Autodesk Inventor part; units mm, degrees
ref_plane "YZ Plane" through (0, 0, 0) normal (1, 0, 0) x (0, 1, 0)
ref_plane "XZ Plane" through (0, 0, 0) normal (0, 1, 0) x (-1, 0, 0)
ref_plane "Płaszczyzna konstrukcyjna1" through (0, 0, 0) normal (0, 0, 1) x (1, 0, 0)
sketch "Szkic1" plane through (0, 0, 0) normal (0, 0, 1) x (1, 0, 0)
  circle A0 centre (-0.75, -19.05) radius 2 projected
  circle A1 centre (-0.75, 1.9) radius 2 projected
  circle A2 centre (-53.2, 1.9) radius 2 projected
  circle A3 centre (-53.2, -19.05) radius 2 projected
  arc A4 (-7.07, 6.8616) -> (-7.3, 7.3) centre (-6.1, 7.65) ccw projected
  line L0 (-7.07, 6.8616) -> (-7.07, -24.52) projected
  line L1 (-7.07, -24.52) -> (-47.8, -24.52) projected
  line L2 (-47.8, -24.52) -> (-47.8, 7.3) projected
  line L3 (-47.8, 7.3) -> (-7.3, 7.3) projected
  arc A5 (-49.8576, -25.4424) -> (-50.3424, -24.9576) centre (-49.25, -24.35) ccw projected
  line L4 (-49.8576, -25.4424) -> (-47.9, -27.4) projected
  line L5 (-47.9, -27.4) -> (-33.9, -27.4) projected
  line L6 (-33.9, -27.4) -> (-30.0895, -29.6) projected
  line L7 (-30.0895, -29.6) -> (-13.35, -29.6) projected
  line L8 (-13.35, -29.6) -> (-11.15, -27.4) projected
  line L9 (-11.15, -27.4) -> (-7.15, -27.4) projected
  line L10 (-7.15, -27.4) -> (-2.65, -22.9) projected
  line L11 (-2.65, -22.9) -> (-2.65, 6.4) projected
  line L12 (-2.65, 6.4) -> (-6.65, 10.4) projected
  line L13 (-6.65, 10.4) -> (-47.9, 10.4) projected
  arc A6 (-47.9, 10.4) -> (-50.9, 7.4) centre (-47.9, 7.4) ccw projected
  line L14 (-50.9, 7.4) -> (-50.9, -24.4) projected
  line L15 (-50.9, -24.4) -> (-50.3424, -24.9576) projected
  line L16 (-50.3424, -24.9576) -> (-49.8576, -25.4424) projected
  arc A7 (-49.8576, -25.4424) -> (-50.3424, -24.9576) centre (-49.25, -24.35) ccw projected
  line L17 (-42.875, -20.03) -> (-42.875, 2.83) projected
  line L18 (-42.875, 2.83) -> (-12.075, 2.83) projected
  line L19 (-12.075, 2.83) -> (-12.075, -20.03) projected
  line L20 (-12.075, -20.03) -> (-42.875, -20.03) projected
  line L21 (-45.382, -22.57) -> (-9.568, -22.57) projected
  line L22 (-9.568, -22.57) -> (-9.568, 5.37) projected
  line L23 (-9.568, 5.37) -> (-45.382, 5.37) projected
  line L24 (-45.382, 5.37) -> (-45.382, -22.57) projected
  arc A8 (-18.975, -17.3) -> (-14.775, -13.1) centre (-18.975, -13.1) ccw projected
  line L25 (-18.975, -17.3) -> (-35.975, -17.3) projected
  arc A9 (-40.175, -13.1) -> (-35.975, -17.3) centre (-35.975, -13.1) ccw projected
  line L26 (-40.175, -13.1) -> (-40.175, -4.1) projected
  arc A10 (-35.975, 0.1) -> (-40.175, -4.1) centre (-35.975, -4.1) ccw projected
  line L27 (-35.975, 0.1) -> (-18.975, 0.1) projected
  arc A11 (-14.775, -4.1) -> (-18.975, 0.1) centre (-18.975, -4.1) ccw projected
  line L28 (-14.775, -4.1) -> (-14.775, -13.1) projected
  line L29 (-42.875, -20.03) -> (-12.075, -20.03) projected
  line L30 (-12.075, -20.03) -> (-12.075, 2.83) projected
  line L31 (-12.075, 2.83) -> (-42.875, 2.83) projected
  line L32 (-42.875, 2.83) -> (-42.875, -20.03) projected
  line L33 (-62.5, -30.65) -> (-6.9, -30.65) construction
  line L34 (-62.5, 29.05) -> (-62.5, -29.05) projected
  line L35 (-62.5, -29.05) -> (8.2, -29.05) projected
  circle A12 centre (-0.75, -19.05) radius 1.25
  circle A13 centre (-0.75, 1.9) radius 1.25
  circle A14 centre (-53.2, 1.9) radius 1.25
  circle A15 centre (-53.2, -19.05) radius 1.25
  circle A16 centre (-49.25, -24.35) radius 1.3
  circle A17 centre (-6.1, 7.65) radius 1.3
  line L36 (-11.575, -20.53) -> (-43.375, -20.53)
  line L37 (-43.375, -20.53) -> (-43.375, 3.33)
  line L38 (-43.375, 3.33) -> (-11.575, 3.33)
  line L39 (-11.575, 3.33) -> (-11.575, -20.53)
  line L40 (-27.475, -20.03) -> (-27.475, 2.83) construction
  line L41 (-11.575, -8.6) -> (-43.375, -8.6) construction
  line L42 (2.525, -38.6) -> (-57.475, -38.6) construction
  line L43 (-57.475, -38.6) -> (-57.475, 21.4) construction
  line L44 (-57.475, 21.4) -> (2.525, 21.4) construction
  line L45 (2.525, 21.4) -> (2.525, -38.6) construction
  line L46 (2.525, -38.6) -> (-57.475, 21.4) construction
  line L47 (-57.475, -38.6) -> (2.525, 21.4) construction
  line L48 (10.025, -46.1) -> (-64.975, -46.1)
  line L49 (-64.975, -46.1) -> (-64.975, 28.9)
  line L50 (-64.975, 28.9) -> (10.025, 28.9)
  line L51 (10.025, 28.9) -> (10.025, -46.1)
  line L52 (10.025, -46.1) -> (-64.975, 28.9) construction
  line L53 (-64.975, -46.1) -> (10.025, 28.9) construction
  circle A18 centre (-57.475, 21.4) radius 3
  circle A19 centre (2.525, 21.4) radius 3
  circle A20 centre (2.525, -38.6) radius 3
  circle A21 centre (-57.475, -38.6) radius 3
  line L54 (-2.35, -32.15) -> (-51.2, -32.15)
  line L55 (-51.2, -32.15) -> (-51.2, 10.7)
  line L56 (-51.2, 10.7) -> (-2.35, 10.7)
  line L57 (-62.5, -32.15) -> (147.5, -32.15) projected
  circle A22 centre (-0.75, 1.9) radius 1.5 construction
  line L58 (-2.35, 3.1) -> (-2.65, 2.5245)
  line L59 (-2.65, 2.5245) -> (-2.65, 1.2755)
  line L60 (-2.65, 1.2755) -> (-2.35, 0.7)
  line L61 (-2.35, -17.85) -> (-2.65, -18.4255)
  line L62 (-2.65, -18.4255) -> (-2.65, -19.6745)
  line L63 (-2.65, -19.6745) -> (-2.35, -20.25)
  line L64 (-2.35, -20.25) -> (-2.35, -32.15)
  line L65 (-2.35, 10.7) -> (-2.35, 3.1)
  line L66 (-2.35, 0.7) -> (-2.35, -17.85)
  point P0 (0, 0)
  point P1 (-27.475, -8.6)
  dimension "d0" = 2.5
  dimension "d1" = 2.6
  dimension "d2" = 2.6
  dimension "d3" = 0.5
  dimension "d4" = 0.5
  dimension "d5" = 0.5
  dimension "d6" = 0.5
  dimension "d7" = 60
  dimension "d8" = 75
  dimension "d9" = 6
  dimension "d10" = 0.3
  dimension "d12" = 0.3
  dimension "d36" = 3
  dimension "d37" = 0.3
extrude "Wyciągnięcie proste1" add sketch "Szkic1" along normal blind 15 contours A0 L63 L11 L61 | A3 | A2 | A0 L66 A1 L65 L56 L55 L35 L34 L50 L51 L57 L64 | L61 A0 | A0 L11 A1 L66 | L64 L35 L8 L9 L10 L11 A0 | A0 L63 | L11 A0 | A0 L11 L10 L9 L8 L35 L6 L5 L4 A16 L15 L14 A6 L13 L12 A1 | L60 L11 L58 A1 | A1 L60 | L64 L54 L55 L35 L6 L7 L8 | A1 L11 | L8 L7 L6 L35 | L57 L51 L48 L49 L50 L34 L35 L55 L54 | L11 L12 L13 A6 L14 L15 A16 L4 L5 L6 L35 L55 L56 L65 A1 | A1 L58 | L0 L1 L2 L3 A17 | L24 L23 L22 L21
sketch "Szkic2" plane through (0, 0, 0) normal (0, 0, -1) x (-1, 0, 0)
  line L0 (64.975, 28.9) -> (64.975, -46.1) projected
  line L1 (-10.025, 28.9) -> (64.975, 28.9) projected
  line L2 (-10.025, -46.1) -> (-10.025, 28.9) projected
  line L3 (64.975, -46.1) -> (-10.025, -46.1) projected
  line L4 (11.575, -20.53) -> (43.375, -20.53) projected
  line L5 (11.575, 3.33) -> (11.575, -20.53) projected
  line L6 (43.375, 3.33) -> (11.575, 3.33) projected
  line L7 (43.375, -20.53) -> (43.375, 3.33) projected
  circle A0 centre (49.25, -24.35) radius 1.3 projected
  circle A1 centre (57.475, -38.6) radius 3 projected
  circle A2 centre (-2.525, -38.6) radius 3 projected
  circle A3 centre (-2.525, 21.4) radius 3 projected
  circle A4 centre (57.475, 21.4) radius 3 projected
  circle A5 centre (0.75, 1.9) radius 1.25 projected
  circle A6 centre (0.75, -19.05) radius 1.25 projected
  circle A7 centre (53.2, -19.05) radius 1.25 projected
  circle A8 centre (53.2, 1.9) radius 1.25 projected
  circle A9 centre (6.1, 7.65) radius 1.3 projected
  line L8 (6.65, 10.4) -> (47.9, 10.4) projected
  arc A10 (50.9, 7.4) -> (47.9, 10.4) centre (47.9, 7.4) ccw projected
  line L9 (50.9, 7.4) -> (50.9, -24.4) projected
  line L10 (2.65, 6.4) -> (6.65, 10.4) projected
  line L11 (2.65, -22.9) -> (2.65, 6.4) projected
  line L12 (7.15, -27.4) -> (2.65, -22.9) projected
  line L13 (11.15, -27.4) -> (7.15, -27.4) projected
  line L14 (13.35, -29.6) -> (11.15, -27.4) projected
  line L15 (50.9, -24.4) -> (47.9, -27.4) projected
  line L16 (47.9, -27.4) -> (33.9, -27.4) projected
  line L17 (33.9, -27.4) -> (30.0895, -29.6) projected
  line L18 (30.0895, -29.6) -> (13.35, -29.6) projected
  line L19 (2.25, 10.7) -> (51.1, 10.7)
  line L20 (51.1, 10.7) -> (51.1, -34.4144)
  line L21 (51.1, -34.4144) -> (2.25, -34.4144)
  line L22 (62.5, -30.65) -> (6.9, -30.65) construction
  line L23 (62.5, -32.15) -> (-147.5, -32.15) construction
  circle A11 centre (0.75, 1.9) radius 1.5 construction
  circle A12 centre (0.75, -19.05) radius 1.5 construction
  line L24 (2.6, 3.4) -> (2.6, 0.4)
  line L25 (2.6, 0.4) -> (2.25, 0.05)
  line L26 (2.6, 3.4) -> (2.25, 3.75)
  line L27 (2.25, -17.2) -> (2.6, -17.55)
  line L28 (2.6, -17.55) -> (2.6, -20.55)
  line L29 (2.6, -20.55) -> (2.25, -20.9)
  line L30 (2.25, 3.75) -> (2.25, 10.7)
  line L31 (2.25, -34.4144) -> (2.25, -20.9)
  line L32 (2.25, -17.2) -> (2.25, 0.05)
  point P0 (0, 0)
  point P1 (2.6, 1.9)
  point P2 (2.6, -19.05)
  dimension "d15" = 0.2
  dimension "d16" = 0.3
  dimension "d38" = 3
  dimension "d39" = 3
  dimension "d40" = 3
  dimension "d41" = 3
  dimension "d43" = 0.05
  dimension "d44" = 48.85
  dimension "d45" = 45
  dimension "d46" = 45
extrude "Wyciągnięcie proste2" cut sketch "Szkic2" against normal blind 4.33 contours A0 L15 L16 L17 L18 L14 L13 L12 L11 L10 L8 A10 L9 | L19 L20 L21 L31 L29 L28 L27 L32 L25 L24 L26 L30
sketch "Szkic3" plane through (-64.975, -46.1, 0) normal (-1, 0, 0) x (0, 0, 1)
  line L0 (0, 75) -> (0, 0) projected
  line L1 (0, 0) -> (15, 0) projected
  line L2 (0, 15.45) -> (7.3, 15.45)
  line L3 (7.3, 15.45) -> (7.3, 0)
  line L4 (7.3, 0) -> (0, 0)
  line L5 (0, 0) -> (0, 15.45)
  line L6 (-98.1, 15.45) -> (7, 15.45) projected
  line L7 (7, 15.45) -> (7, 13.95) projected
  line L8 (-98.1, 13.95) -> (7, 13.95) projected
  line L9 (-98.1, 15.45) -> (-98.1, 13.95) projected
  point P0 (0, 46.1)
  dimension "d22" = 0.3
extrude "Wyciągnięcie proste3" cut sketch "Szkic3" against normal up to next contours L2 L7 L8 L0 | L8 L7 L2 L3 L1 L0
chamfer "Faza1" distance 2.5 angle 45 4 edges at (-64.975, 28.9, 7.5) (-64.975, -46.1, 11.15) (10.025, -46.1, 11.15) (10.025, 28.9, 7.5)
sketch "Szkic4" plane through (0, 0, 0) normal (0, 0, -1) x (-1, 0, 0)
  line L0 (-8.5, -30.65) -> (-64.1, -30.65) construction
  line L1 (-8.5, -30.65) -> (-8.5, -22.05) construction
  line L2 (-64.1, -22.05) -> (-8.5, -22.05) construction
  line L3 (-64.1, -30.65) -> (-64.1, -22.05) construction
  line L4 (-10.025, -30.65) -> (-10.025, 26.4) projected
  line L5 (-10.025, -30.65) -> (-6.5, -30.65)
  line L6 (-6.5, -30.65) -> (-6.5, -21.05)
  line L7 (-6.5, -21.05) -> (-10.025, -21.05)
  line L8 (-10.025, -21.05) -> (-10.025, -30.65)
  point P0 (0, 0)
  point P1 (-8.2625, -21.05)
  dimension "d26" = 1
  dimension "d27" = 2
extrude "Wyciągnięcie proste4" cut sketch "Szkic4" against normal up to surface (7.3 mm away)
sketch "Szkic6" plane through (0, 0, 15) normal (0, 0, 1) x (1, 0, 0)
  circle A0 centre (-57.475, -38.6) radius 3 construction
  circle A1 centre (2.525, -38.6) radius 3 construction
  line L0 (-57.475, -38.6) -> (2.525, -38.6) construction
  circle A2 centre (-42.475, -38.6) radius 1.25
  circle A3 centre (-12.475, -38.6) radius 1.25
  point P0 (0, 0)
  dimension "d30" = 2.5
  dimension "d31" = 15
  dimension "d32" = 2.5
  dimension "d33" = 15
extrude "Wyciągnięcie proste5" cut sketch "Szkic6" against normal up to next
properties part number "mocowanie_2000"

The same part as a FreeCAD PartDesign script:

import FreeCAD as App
import Part
import Sketcher
from FreeCAD import Vector
Q = App.Units.Quantity


def edges_at(feature, points):
    """Names of the edges that pass closest to the given points."""
    edges = feature.Shape.Edges
    near = lambda p: min(range(len(edges)), key=lambda i: edges[i].distToShape(Part.Vertex(*p))[0])
    return sorted({f"Edge{near(p) + 1}" for p in points})

doc = App.newDocument("Part")
body = doc.addObject("PartDesign::Body", "Body")

# Sketch on XY plane
sketch1 = doc.addObject("Sketcher::SketchObject", "Sketch")
body.addObject(sketch1)
sketch1.AttachmentSupport = (doc.XY_Plane, [""])
sketch1.MapMode = "FlatFace"
sketch1.addGeometry([
    Part.LineSegment(Vector(10, 28.9, 0), Vector(-65, 28.9, 0)),  # 0
    Part.LineSegment(Vector(-65, 28.9, 0), Vector(-65, -46.1, 0)),  # 1
    Part.LineSegment(Vector(-65, -46.1, 0), Vector(10, -46.1, 0)),  # 2
    Part.LineSegment(Vector(10, -46.1, 0), Vector(10, 28.9, 0)),  # 3
    Part.Circle(Vector(-0.8, -19.1, 0), Vector(0, 0, 1), 1.2),  # 4
    Part.Circle(Vector(-57.5, 21.4, 0), Vector(0, 0, 1), 3),  # 5
    Part.Circle(Vector(2.5, 21.4, 0), Vector(0, 0, 1), 3),  # 6
    Part.Circle(Vector(-0.8, 1.9, 0), Vector(0, 0, 1), 1.2),  # 7
    Part.Circle(Vector(-49.2, -24.4, 0), Vector(0, 0, 1), 1.3),  # 8
    Part.Circle(Vector(-57.5, -38.6, 0), Vector(0, 0, 1), 3),  # 9
    Part.Circle(Vector(2.5, -38.6, 0), Vector(0, 0, 1), 3),  # 10
    Part.Circle(Vector(-53.2, -19.1, 0), Vector(0, 0, 1), 1.2),  # 11
    Part.Circle(Vector(-53.2, 1.9, 0), Vector(0, 0, 1), 1.2),  # 12
    Part.Circle(Vector(-6.1, 7.7, 0), Vector(0, 0, 1), 1.3),  # 13
    Part.LineSegment(Vector(-11.6, -20.5, 0), Vector(-43.4, -20.5, 0)),  # 14
    Part.LineSegment(Vector(-43.4, -20.5, 0), Vector(-43.4, 3.3, 0)),  # 15
    Part.LineSegment(Vector(-43.4, 3.3, 0), Vector(-11.6, 3.3, 0)),  # 16
    Part.LineSegment(Vector(-11.6, 3.3, 0), Vector(-11.6, -20.5, 0)),  # 17
], False)
sketch1.addConstraint([
    Sketcher.Constraint("Coincident", 0, 2, 1, 1),
    Sketcher.Constraint("Coincident", 1, 2, 2, 1),
    Sketcher.Constraint("Coincident", 2, 2, 3, 1),
    Sketcher.Constraint("Coincident", 3, 2, 0, 1),
    Sketcher.Constraint("Coincident", 14, 2, 15, 1),
    Sketcher.Constraint("Coincident", 15, 2, 16, 1),
    Sketcher.Constraint("Coincident", 16, 2, 17, 1),
    Sketcher.Constraint("Coincident", 17, 2, 14, 1),
    Sketcher.Constraint("Horizontal", 0),
    Sketcher.Constraint("Vertical", 1),
    Sketcher.Constraint("Horizontal", 2),
    Sketcher.Constraint("Vertical", 3),
    Sketcher.Constraint("Horizontal", 14),
    Sketcher.Constraint("Vertical", 15),
    Sketcher.Constraint("Horizontal", 16),
    Sketcher.Constraint("Vertical", 17),
    Sketcher.Constraint("Equal", 5, 6),
    Sketcher.Constraint("Equal", 4, 7),
    Sketcher.Constraint("Equal", 6, 9),
    Sketcher.Constraint("Equal", 9, 10),
    Sketcher.Constraint("Equal", 7, 11),
    Sketcher.Constraint("Equal", 11, 12),
    Sketcher.Constraint("Equal", 8, 13),
    Sketcher.Constraint("Horizontal", 5, 3, 6, 3),
    Sketcher.Constraint("Horizontal", 9, 3, 10, 3),
    Sketcher.Constraint("Horizontal", 4, 3, 11, 3),
    Sketcher.Constraint("Horizontal", 7, 3, 12, 3),
    Sketcher.Constraint("Vertical", 4, 3, 7, 3),
    Sketcher.Constraint("Vertical", 5, 3, 9, 3),
    Sketcher.Constraint("Vertical", 6, 3, 10, 3),
    Sketcher.Constraint("Vertical", 11, 3, 12, 3),
    Sketcher.Constraint("Equal", 2, 1),
    Sketcher.Constraint("Diameter", 5, Q("6 mm")),
    Sketcher.Constraint("Diameter", 4, Q("2.5 mm")),
    Sketcher.Constraint("Diameter", 8, Q("2.6 mm")),
    Sketcher.Constraint("DistanceX", 0, 2, 0, 1, Q("75 mm")),
    Sketcher.Constraint("DistanceX", 5, 3, 6, 3, Q("60 mm")),
    Sketcher.Constraint("DistanceY", 9, 3, 5, 3, Q("60 mm")),
    Sketcher.Constraint("DistanceX", 14, 2, 14, 1, Q("31.8 mm")),
    Sketcher.Constraint("DistanceY", 12, 3, 0, 2, Q("27 mm")),
    Sketcher.Constraint("DistanceY", 15, 1, 15, 2, Q("23.86 mm")),
    Sketcher.Constraint("DistanceY", -1, 1, 5, 3, Q("21.4 mm")),
    Sketcher.Constraint("DistanceY", -1, 1, 7, 3, Q("1.9 mm")),
    Sketcher.Constraint("DistanceX", 11, 3, -1, 1, Q("53.2 mm")),
    Sketcher.Constraint("DistanceX", 13, 3, -1, 1, Q("6.1 mm")),
    Sketcher.Constraint("DistanceX", 8, 3, 4, 3, Q("48.5 mm")),
    Sketcher.Constraint("DistanceY", 8, 3, 4, 3, Q("5.3 mm")),
    Sketcher.Constraint("DistanceY", 4, 3, 13, 3, Q("26.7 mm")),
    Sketcher.Constraint("DistanceX", 0, 2, 5, 3, Q("7.5 mm")),
    Sketcher.Constraint("DistanceX", 9, 3, 14, 2, Q("14.1 mm")),
    Sketcher.Constraint("DistanceX", 4, 3, -1, 1, Q("0.75 mm")),
    Sketcher.Constraint("DistanceY", 4, 3, -1, 1, Q("19.05 mm")),
    Sketcher.Constraint("DistanceY", 14, 2, -1, 1, Q("20.53 mm")),
    Sketcher.Constraint("DistanceX", 5, 3, -1, 1, Q("57.475 mm")),
])
pad1 = doc.addObject("PartDesign::Pad", "Pad")
body.addObject(pad1)
pad1.Profile = sketch1
pad1.Length = 15

# Sketch on XY plane
sketch2 = doc.addObject("Sketcher::SketchObject", "Sketch001")
body.addObject(sketch2)
sketch2.AttachmentSupport = (doc.XY_Plane, [""])
sketch2.MapMode = "FlatFace"
sketch2.addGeometry([
    Part.LineSegment(Vector(-51.1, 10.7, 0), Vector(-2.25, 10.7, 0)),  # 0
    Part.LineSegment(Vector(-2.25, 10.7, 0), Vector(-2.25, 3.75, 0)),  # 1
    Part.LineSegment(Vector(-2.25, 3.75, 0), Vector(-2.6, 3.4, 0)),  # 2
    Part.LineSegment(Vector(-2.6, 3.4, 0), Vector(-2.6, 0.4, 0)),  # 3
    Part.LineSegment(Vector(-2.6, 0.4, 0), Vector(-2.25, 0.05, 0)),  # 4
    Part.LineSegment(Vector(-2.25, 0.05, 0), Vector(-2.25, -17.2, 0)),  # 5
    Part.LineSegment(Vector(-2.25, -17.2, 0), Vector(-2.6, -17.55, 0)),  # 6
    Part.LineSegment(Vector(-2.6, -17.55, 0), Vector(-2.6, -20.55, 0)),  # 7
    Part.LineSegment(Vector(-2.6, -20.55, 0), Vector(-2.25, -20.9, 0)),  # 8
    Part.LineSegment(Vector(-2.25, -20.9, 0), Vector(-2.25, -34.41, 0)),  # 9
    Part.LineSegment(Vector(-2.25, -34.41, 0), Vector(-51.1, -34.41, 0)),  # 10
    Part.LineSegment(Vector(-51.1, -34.41, 0), Vector(-51.1, 10.7, 0)),  # 11
    Part.Circle(Vector(-49.25, -24.35, 0), Vector(0, 0, 1), 1.3),  # 12
    Part.Circle(Vector(-6.1, 7.65, 0), Vector(0, 0, 1), 1.3),  # 13
    Part.LineSegment(Vector(-43.38, -20.53, 0), Vector(-11.57, -20.53, 0)),  # 14
    Part.LineSegment(Vector(-11.57, -20.53, 0), Vector(-11.57, 3.33, 0)),  # 15
    Part.LineSegment(Vector(-11.57, 3.33, 0), Vector(-43.38, 3.33, 0)),  # 16
    Part.LineSegment(Vector(-43.38, 3.33, 0), Vector(-43.38, -20.53, 0)),  # 17
], False)
sketch2.addConstraint([
    Sketcher.Constraint("Coincident", 0, 2, 1, 1),
    Sketcher.Constraint("Coincident", 1, 2, 2, 1),
    Sketcher.Constraint("Coincident", 2, 2, 3, 1),
    Sketcher.Constraint("Coincident", 3, 2, 4, 1),
    Sketcher.Constraint("Coincident", 4, 2, 5, 1),
    Sketcher.Constraint("Coincident", 5, 2, 6, 1),
    Sketcher.Constraint("Coincident", 6, 2, 7, 1),
    Sketcher.Constraint("Coincident", 7, 2, 8, 1),
    Sketcher.Constraint("Coincident", 8, 2, 9, 1),
    Sketcher.Constraint("Coincident", 9, 2, 10, 1),
    Sketcher.Constraint("Coincident", 10, 2, 11, 1),
    Sketcher.Constraint("Coincident", 11, 2, 0, 1),
    Sketcher.Constraint("Coincident", 14, 2, 15, 1),
    Sketcher.Constraint("Coincident", 15, 2, 16, 1),
    Sketcher.Constraint("Coincident", 16, 2, 17, 1),
    Sketcher.Constraint("Coincident", 17, 2, 14, 1),
    Sketcher.Constraint("Horizontal", 0),
    Sketcher.Constraint("Vertical", 1),
    Sketcher.Constraint("Vertical", 3),
    Sketcher.Constraint("Vertical", 5),
    Sketcher.Constraint("Vertical", 7),
    Sketcher.Constraint("Vertical", 9),
    Sketcher.Constraint("Horizontal", 10),
    Sketcher.Constraint("Vertical", 11),
    Sketcher.Constraint("Horizontal", 14),
    Sketcher.Constraint("Vertical", 15),
    Sketcher.Constraint("Horizontal", 16),
    Sketcher.Constraint("Vertical", 17),
    Sketcher.Constraint("Equal", 12, 13),
    Sketcher.Constraint("Perpendicular", 2, 4),
    Sketcher.Constraint("Perpendicular", 4, 6),
    Sketcher.Constraint("Perpendicular", 6, 8),
    Sketcher.Constraint("Vertical", 1, 2, 4, 2),
    Sketcher.Constraint("Vertical", 3, 2, 6, 2),
    Sketcher.Constraint("Vertical", 5, 2, 8, 2),
    Sketcher.Constraint("Equal", 3, 7),
    Sketcher.Constraint("Equal", 2, 4),
    Sketcher.Constraint("DistanceY", 3, 2, 3, 1, Q("3 mm")),
    Sketcher.Constraint("DistanceX", 11, 2, 13, 3, Q("45 mm")),
    Sketcher.Constraint("Diameter", 12, Q("2.6 mm")),
    Sketcher.Constraint("DistanceX", 0, 1, 0, 2, Q("48.85 mm")),
    Sketcher.Constraint("DistanceY", -1, 1, 4, 2, Q("0.05 mm")),
    Sketcher.Constraint("DistanceX", 14, 1, 14, 2, Q("31.8 mm")),
    Sketcher.Constraint("DistanceY", 12, 3, 13, 3, Q("32 mm")),
    Sketcher.Constraint("DistanceX", 12, 3, 0, 2, Q("47 mm")),
    Sketcher.Constraint("DistanceY", 1, 2, 1, 1, Q("6.95 mm")),
    Sketcher.Constraint("DistanceY", 5, 2, 5, 1, Q("17.25 mm")),
    Sketcher.Constraint("DistanceY", 15, 1, 15, 2, Q("23.86 mm")),
    Sketcher.Constraint("DistanceX", 13, 3, -1, 1, Q("6.1 mm")),
    Sketcher.Constraint("DistanceY", -1, 1, 0, 2, Q("10.7 mm")),
    Sketcher.Constraint("DistanceY", 1, 2, 13, 3, Q("3.9 mm")),
    Sketcher.Constraint("DistanceY", 14, 2, -1, 1, Q("20.53 mm")),
    Sketcher.Constraint("DistanceY", 9, 2, 9, 1, Q("13.5144 mm")),
    Sketcher.Constraint("DistanceX", 14, 2, -1, 1, Q("11.575 mm")),
])
pocket1 = doc.addObject("PartDesign::Pocket", "Pocket")
body.addObject(pocket1)
pocket1.Profile = sketch2
pocket1.Length = 4.33
pocket1.Reversed = True

# Sketch on YZ plane
sketch3 = doc.addObject("Sketcher::SketchObject", "Sketch002")
body.addObject(sketch3)
sketch3.AttachmentSupport = (doc.YZ_Plane, [""])
sketch3.MapMode = "FlatFace"
sketch3.AttachmentOffset = App.Placement(Vector(0, 0, -64.975), App.Rotation())
sketch3.addGeometry([
    Part.LineSegment(Vector(-31, 0, 0), Vector(-46, 0, 0)),
    Part.LineSegment(Vector(-46, 0, 0), Vector(-46, 7, 0)),
    Part.LineSegment(Vector(-46, 7, 0), Vector(-31, 7, 0)),
    Part.LineSegment(Vector(-31, 7, 0), Vector(-31, 0, 0)),
], False)
sketch3.addConstraint([
    Sketcher.Constraint("Coincident", 0, 2, 1, 1),
    Sketcher.Constraint("Coincident", 1, 2, 2, 1),
    Sketcher.Constraint("Coincident", 2, 2, 3, 1),
    Sketcher.Constraint("Coincident", 3, 2, 0, 1),
    Sketcher.Constraint("Horizontal", 0),
    Sketcher.Constraint("Vertical", 1),
    Sketcher.Constraint("Horizontal", 2),
    Sketcher.Constraint("Vertical", 3),
    Sketcher.Constraint("PointOnObject", 0, 2, -1),
    Sketcher.Constraint("DistanceY", 1, 1, 1, 2, Q("7.3 mm")),
    Sketcher.Constraint("DistanceX", 0, 2, 0, 1, Q("15.45 mm")),
    Sketcher.Constraint("DistanceX", 0, 2, -1, 1, Q("46.1 mm")),
])
pocket2 = doc.addObject("PartDesign::Pocket", "Pocket001")
body.addObject(pocket2)
pocket2.Profile = sketch3
pocket2.Type = "UpToFirst"
pocket2.Reversed = True
doc.recompute()

chamfer = doc.addObject("PartDesign::Chamfer", "Chamfer")
body.addObject(chamfer)
chamfer.Base = (pocket2, edges_at(pocket2, [
    (-64.975, 28.9, 7.5),
    (-64.975, -46.1, 11.15),
    (10.025, -46.1, 11.15),
    (10.025, 28.9, 7.5),
]))
chamfer.Size = 2.5

# Sketch on XY plane
sketch4 = doc.addObject("Sketcher::SketchObject", "Sketch003")
body.addObject(sketch4)
sketch4.AttachmentSupport = (doc.XY_Plane, [""])
sketch4.MapMode = "FlatFace"
sketch4.addGeometry([
    Part.LineSegment(Vector(10, -21.1, 0), Vector(10, -30.6, 0)),
    Part.LineSegment(Vector(10, -30.6, 0), Vector(6.5, -30.6, 0)),
    Part.LineSegment(Vector(6.5, -30.6, 0), Vector(6.5, -21.1, 0)),
    Part.LineSegment(Vector(6.5, -21.1, 0), Vector(10, -21.1, 0)),
], False)
sketch4.addConstraint([
    Sketcher.Constraint("Coincident", 0, 2, 1, 1),
    Sketcher.Constraint("Coincident", 1, 2, 2, 1),
    Sketcher.Constraint("Coincident", 2, 2, 3, 1),
    Sketcher.Constraint("Coincident", 3, 2, 0, 1),
    Sketcher.Constraint("Vertical", 0),
    Sketcher.Constraint("Horizontal", 1),
    Sketcher.Constraint("Vertical", 2),
    Sketcher.Constraint("Horizontal", 3),
    Sketcher.Constraint("DistanceY", 0, 2, 0, 1, Q("9.6 mm")),
    Sketcher.Constraint("DistanceX", -1, 1, 1, 2, Q("6.5 mm")),
    Sketcher.Constraint("DistanceX", 1, 2, 1, 1, Q("3.525 mm")),
    Sketcher.Constraint("DistanceY", 0, 2, -1, 1, Q("30.65 mm")),
])
pocket3 = doc.addObject("PartDesign::Pocket", "Pocket002")
body.addObject(pocket3)
pocket3.Profile = sketch4
pocket3.Length = 7.3
pocket3.Reversed = True

# Sketch on XY plane
sketch5 = doc.addObject("Sketcher::SketchObject", "Sketch004")
body.addObject(sketch5)
sketch5.AttachmentSupport = (doc.XY_Plane, [""])
sketch5.MapMode = "FlatFace"
sketch5.AttachmentOffset = App.Placement(Vector(0, 0, 15), App.Rotation())
sketch5.addGeometry([
    Part.Circle(Vector(-42.5, -38.6, 0), Vector(0, 0, 1), 1.2),
    Part.Circle(Vector(-12.5, -38.6, 0), Vector(0, 0, 1), 1.2),
], False)
sketch5.addConstraint([
    Sketcher.Constraint("Equal", 0, 1),
    Sketcher.Constraint("Horizontal", 0, 3, 1, 3),
    Sketcher.Constraint("Diameter", 0, Q("2.5 mm")),
    Sketcher.Constraint("DistanceX", 0, 3, 1, 3, Q("30 mm")),
    Sketcher.Constraint("DistanceY", 0, 3, -1, 1, Q("38.6 mm")),
    Sketcher.Constraint("DistanceX", 0, 3, -1, 1, Q("42.475 mm")),
])
pocket4 = doc.addObject("PartDesign::Pocket", "Pocket003")
body.addObject(pocket4)
pocket4.Profile = sketch5
pocket4.Type = "UpToFirst"

doc.recompute()
